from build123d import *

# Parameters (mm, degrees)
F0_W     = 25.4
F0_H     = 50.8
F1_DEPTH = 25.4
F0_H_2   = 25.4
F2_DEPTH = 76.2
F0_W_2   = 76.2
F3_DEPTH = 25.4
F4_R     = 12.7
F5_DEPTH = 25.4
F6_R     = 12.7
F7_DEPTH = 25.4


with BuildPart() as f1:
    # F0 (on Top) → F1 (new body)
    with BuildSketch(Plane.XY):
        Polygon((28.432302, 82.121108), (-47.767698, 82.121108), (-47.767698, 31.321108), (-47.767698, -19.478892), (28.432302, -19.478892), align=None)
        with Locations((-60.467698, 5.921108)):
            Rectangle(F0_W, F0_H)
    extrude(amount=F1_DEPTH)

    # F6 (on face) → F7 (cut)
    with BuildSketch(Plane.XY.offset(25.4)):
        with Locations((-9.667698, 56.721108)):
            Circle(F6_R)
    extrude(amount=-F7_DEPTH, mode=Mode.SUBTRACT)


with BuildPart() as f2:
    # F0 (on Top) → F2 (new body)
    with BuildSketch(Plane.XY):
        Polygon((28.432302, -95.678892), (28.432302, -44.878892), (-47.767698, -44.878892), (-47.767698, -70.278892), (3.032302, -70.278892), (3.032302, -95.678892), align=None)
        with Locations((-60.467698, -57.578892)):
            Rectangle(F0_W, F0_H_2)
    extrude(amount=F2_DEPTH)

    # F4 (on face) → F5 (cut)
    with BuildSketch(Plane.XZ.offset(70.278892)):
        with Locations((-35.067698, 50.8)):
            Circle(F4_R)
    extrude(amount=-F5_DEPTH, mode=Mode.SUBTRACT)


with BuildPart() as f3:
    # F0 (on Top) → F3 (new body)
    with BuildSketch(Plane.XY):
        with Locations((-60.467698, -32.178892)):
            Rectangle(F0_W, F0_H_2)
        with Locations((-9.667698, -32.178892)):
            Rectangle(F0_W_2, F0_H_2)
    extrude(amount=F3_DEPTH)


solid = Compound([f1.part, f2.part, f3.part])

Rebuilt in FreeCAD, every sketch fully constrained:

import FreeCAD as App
import Part
import Sketcher
from FreeCAD import Vector
Q = App.Units.Quantity


def add_polygon(sketch, points):
    """Adds a closed chain of lines whose ends are joined by coincident constraints."""
    first, n = sketch.GeometryCount, len(points)
    for a, b in zip(points, points[1:] + points[:1]):
        sketch.addGeometry(Part.LineSegment(App.Vector(*a, 0), App.Vector(*b, 0)), False)
    for i in range(n):
        sketch.addConstraint(Sketcher.Constraint("Coincident", first + i, 2, first + (i + 1) % n, 1))

doc = App.newDocument("Part")
body = doc.addObject("PartDesign::Body", "Body")

# Sketch on XY plane
sketch1 = body.newObject("Sketcher::SketchObject", "Sketch")
sketch1.AttachmentSupport = (doc.getObject("XY_Plane"), [""])
sketch1.MapMode = "FlatFace"
add_polygon(sketch1, [(28, 82), (-48, 82), (-48, 31), (-73, 31), (-73, -19), (28, -19)])  # lines 0-5
sketch1.addConstraint(Sketcher.Constraint("Horizontal", 0))
sketch1.addConstraint(Sketcher.Constraint("Vertical", 1))
sketch1.addConstraint(Sketcher.Constraint("Horizontal", 2))
sketch1.addConstraint(Sketcher.Constraint("Vertical", 3))
sketch1.addConstraint(Sketcher.Constraint("Horizontal", 4))
sketch1.addConstraint(Sketcher.Constraint("Vertical", 5))
sketch1.addConstraint(Sketcher.Constraint("Equal", 1, 3))
sketch1.addConstraint(Sketcher.Constraint("Equal", 4, 5))
sketch1.addConstraint(Sketcher.Constraint("DistanceX", 0, 2, 0, 1, Q("3 in")))
sketch1.addConstraint(Sketcher.Constraint("DistanceX", 2, 2, 2, 1, Q("1 in")))
sketch1.addConstraint(Sketcher.Constraint("DistanceX", 0, 2, -1, 1, Q("47.767698 mm")))
sketch1.addConstraint(Sketcher.Constraint("DistanceY", -1, 1, 0, 2, Q("82.121108 mm")))
pad1 = body.newObject("PartDesign::Pad", "Pad")
pad1.Profile = sketch1
pad1.Length = Q("1 in")

# Sketch on XY plane
sketch2 = body.newObject("Sketcher::SketchObject", "Sketch001")
sketch2.AttachmentSupport = (doc.getObject("XY_Plane"), [""])
sketch2.MapMode = "FlatFace"
sketch2.AttachmentOffset = App.Placement(Vector(0, 0, 1 * 25.4), App.Rotation())
sketch2.addGeometry(Part.Circle(Vector(-10, 57, 0), Vector(0, 0, 1), 13), False)
sketch2.addConstraint(Sketcher.Constraint("Diameter", 0, Q("1 in")))
sketch2.addConstraint(Sketcher.Constraint("DistanceX", 0, 3, -1, 1, Q("9.667698 mm")))
sketch2.addConstraint(Sketcher.Constraint("DistanceY", -1, 1, 0, 3, Q("56.721108 mm")))
pocket1 = body.newObject("PartDesign::Pocket", "Pocket")
pocket1.Profile = sketch2
pocket1.Length = Q("1 in")
body2 = doc.addObject("PartDesign::Body", "Body001")

# Sketch on XY plane
sketch3 = body2.newObject("Sketcher::SketchObject", "Sketch002")
sketch3.AttachmentSupport = (doc.getObject("XY_Plane001"), [""])
sketch3.MapMode = "FlatFace"
add_polygon(sketch3, [(28, -96), (28, -45), (-73, -45), (-73, -70), (3, -70), (3, -96)])  # lines 0-5
sketch3.addConstraint(Sketcher.Constraint("Vertical", 0))
sketch3.addConstraint(Sketcher.Constraint("Horizontal", 1))
sketch3.addConstraint(Sketcher.Constraint("Vertical", 2))
sketch3.addConstraint(Sketcher.Constraint("Horizontal", 3))
sketch3.addConstraint(Sketcher.Constraint("Vertical", 4))
sketch3.addConstraint(Sketcher.Constraint("Horizontal", 5))
sketch3.addConstraint(Sketcher.Constraint("Equal", 5, 2))
sketch3.addConstraint(Sketcher.Constraint("Equal", 2, 4))
sketch3.addConstraint(Sketcher.Constraint("DistanceX", 1, 2, 1, 1, Q("4 in")))
sketch3.addConstraint(Sketcher.Constraint("DistanceX", 3, 1, 3, 2, Q("3 in")))
sketch3.addConstraint(Sketcher.Constraint("DistanceX", -1, 1, 0, 2, Q("28.432302 mm")))
sketch3.addConstraint(Sketcher.Constraint("DistanceY", 2, 2, -1, 1, Q("70.278892 mm")))
pad2 = body2.newObject("PartDesign::Pad", "Pad001")
pad2.Profile = sketch3
pad2.Length = Q("3 in")

# Sketch on XZ plane
sketch4 = body2.newObject("Sketcher::SketchObject", "Sketch003")
sketch4.AttachmentSupport = (doc.getObject("XZ_Plane001"), [""])
sketch4.MapMode = "FlatFace"
sketch4.AttachmentOffset = App.Placement(Vector(0, 0, 70.278892), App.Rotation())
sketch4.addGeometry(Part.Circle(Vector(-35, 51, 0), Vector(0, 0, 1), 13), False)
sketch4.addConstraint(Sketcher.Constraint("Diameter", 0, Q("1 in")))
sketch4.addConstraint(Sketcher.Constraint("DistanceY", -1, 1, 0, 3, Q("2 in")))
sketch4.addConstraint(Sketcher.Constraint("DistanceX", 0, 3, -1, 1, Q("35.067698 mm")))
pocket2 = body2.newObject("PartDesign::Pocket", "Pocket001")
pocket2.Profile = sketch4
pocket2.Length = Q("1 in")
body3 = doc.addObject("PartDesign::Body", "Body002")

# Sketch on XY plane
sketch5 = body3.newObject("Sketcher::SketchObject", "Sketch004")
sketch5.AttachmentSupport = (doc.getObject("XY_Plane002"), [""])
sketch5.MapMode = "FlatFace"
add_polygon(sketch5, [(-73, -19), (-73, -45), (28, -45), (28, -19)])  # lines 0-3
sketch5.addConstraint(Sketcher.Constraint("Vertical", 0))
sketch5.addConstraint(Sketcher.Constraint("Horizontal", 1))
sketch5.addConstraint(Sketcher.Constraint("Vertical", 2))
sketch5.addConstraint(Sketcher.Constraint("Horizontal", 3))
sketch5.addConstraint(Sketcher.Constraint("DistanceX", 1, 1, 1, 2, Q("4 in")))
sketch5.addConstraint(Sketcher.Constraint("DistanceY", 0, 2, 0, 1, Q("1 in")))
sketch5.addConstraint(Sketcher.Constraint("DistanceX", 0, 2, -1, 1, Q("73.167698 mm")))
sketch5.addConstraint(Sketcher.Constraint("DistanceY", 2, 2, -1, 1, Q("19.478892 mm")))
pad3 = body3.newObject("PartDesign::Pad", "Pad002")
pad3.Profile = sketch5
pad3.Length = Q("1 in")

doc.recompute()
